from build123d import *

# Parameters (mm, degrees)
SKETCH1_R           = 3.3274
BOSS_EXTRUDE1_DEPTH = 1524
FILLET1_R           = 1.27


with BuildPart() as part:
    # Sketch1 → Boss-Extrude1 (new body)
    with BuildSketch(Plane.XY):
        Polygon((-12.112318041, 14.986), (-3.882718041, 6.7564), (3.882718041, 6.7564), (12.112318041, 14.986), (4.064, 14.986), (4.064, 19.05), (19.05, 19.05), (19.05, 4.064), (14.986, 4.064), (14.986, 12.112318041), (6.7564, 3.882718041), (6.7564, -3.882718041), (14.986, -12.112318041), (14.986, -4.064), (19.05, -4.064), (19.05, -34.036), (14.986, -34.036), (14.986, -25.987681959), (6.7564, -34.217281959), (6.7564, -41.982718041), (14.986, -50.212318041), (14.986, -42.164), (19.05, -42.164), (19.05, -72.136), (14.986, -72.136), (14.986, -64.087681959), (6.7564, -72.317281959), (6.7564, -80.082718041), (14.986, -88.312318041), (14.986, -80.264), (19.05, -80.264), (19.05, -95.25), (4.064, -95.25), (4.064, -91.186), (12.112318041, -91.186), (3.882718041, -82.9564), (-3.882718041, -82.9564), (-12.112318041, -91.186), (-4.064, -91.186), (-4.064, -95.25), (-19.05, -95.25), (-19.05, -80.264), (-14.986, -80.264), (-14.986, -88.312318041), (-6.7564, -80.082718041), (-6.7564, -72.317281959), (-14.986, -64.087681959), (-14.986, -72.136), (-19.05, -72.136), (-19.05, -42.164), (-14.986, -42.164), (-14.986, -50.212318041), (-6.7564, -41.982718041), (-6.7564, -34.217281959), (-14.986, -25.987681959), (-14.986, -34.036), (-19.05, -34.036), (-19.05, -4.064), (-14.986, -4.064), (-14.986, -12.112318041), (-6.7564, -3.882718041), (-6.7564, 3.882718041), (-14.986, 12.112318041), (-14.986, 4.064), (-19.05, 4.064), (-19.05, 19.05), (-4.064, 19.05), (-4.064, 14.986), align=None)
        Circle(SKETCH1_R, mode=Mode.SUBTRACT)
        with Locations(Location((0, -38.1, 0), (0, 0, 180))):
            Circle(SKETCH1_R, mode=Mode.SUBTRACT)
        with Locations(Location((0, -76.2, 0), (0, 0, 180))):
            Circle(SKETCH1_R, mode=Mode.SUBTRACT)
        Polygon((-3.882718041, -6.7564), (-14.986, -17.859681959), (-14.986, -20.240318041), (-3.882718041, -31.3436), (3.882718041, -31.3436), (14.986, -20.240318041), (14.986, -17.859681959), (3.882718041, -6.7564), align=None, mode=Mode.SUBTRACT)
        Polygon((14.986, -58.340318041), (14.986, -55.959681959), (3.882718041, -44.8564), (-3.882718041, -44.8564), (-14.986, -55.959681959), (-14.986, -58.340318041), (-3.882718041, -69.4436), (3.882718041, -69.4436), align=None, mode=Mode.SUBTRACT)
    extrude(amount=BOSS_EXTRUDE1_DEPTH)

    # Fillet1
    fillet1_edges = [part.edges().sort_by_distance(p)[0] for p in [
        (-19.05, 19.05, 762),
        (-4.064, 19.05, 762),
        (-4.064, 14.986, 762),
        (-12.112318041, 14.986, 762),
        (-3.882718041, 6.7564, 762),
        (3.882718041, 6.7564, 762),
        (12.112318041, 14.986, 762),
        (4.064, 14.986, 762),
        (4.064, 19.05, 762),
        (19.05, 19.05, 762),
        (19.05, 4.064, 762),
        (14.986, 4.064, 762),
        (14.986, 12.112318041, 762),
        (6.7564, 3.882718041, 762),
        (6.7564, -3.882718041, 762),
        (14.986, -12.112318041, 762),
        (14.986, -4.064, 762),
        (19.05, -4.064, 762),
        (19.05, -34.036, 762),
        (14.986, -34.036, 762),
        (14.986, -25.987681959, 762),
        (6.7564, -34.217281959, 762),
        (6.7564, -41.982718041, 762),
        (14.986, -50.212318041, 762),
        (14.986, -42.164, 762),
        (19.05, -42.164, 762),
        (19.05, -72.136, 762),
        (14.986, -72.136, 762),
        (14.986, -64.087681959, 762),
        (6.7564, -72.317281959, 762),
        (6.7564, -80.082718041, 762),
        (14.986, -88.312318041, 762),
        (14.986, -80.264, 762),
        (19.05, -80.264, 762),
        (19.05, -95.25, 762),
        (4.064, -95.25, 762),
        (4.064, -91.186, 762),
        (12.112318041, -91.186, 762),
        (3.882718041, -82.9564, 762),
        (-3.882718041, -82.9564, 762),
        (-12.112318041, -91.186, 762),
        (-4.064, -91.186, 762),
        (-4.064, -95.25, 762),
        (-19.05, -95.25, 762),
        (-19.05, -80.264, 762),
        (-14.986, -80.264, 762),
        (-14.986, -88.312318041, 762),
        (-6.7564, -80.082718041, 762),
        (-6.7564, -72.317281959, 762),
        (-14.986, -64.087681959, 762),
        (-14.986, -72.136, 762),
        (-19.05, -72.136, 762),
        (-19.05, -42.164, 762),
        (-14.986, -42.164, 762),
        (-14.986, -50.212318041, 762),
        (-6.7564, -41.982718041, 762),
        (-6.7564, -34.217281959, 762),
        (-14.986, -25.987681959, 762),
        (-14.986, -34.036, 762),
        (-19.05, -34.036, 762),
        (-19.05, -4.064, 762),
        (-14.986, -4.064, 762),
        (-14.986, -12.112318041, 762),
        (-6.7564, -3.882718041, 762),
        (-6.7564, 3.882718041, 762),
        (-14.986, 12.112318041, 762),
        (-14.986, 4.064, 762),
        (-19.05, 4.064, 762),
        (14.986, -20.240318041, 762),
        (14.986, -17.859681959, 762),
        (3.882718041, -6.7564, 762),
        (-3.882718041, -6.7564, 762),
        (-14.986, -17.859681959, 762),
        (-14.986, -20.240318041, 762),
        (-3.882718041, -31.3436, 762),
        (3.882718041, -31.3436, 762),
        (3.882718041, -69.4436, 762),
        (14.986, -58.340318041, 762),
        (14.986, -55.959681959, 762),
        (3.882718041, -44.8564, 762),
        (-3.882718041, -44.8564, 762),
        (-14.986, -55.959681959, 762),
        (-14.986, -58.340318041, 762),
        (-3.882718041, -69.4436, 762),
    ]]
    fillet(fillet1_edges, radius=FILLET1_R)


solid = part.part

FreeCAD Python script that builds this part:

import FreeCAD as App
import Part
import Sketcher
from FreeCAD import Vector
Q = App.Units.Quantity


def edges_at(feature, points):
    """Names of the edges that pass closest to the given points."""
    edges = feature.Shape.Edges
    near = lambda p: min(range(len(edges)), key=lambda i: edges[i].distToShape(Part.Vertex(*p))[0])
    return sorted({f"Edge{near(p) + 1}" for p in points})


def add_polygon(sketch, points):
    """Adds a closed chain of lines whose ends are joined by coincident constraints."""
    first, n = sketch.GeometryCount, len(points)
    for a, b in zip(points, points[1:] + points[:1]):
        sketch.addGeometry(Part.LineSegment(App.Vector(*a, 0), App.Vector(*b, 0)), False)
    for i in range(n):
        sketch.addConstraint(Sketcher.Constraint("Coincident", first + i, 2, first + (i + 1) % n, 1))

doc = App.newDocument("Part")
body = doc.addObject("PartDesign::Body", "Body")

# Sketch on XY plane
sketch1 = body.newObject("Sketcher::SketchObject", "Sketch")
sketch1.AttachmentSupport = (doc.getObject("XY_Plane"), [""])
sketch1.MapMode = "FlatFace"
add_polygon(sketch1, [(-3.882718, 6.7564), (-12.112318, 14.986), (-4.064, 14.986), (-4.064, 19.05), (-19.05, 19.05), (-19.05, 4.064), (-14.986, 4.064), (-14.986, 12.112318), (-6.7564, 3.882718), (-6.7564, -3.882718), (-14.986, -12.112318), (-14.986, -4.064), (-19.05, -4.064), (-19.05, -34.036), (-14.986, -34.036), (-14.986, -25.987682), (-6.7564, -34.217282), (-6.7564, -41.982718), (-14.986, -50.212318), (-14.986, -42.164), (-19.05, -42.164), (-19.05, -72.136), (-14.986, -72.136), (-14.986, -64.087682), (-6.7564, -72.317282), (-6.7564, -80.082718), (-14.986, -88.312318), (-14.986, -80.264), (-19.05, -80.264), (-19.05, -95.25), (-4.064, -95.25), (-4.064, -91.186), (-12.112318, -91.186), (-3.882718, -82.9564), (3.882718, -82.9564), (12.112318, -91.186), (4.064, -91.186), (4.064, -95.25), (19.05, -95.25), (19.05, -80.264), (14.986, -80.264), (14.986, -88.312318), (6.7564, -80.082718), (6.7564, -72.317282), (14.986, -64.087682), (14.986, -72.136), (19.05, -72.136), (19.05, -42.164), (14.986, -42.164), (14.986, -50.212318), (6.7564, -41.982718), (6.7564, -34.217282), (14.986, -25.987682), (14.986, -34.036), (19.05, -34.036), (19.05, -4.064), (14.986, -4.064), (14.986, -12.112318), (6.7564, -3.882718), (6.7564, 3.882718), (14.986, 12.112318), (14.986, 4.064), (19.05, 4.064), (19.05, 19.05), (4.064, 19.05), (4.064, 14.986), (12.112318, 14.986), (3.882718, 6.7564)])  # lines 0-67
sketch1.addGeometry(Part.Circle(Vector(0, -76.2, 0), Vector(0, 0, 1), 3.3274), False)  # 68
add_polygon(sketch1, [(14.986, -58.340318), (3.882718, -69.4436), (-3.882718, -69.4436), (-14.986, -58.340318), (-14.986, -55.959682), (-3.882718, -44.8564), (3.882718, -44.8564), (14.986, -55.959682)])  # lines 69-76
sketch1.addGeometry(Part.Circle(Vector(0, -38.1, 0), Vector(0, 0, 1), 3.3274), False)  # 77
add_polygon(sketch1, [(-3.882718, -6.7564), (3.882718, -6.7564), (14.986, -17.859682), (14.986, -20.240318), (3.882718, -31.3436), (-3.882718, -31.3436), (-14.986, -20.240318), (-14.986, -17.859682)])  # lines 78-85
sketch1.addGeometry(Part.Circle(Vector(0, 0, 0), Vector(0, 0, 1), 3.3274), False)  # 86
sketch1.addConstraint([
    Sketcher.Constraint("Horizontal", 1),
    Sketcher.Constraint("Vertical", 2),
    Sketcher.Constraint("Horizontal", 3),
    Sketcher.Constraint("Vertical", 4),
    Sketcher.Constraint("Horizontal", 5),
    Sketcher.Constraint("Vertical", 6),
    Sketcher.Constraint("Vertical", 8),
    Sketcher.Constraint("Vertical", 10),
    Sketcher.Constraint("Horizontal", 11),
    Sketcher.Constraint("Vertical", 12),
    Sketcher.Constraint("Horizontal", 13),
    Sketcher.Constraint("Vertical", 14),
    Sketcher.Constraint("Vertical", 16),
    Sketcher.Constraint("Vertical", 18),
    Sketcher.Constraint("Horizontal", 19),
    Sketcher.Constraint("Vertical", 20),
    Sketcher.Constraint("Horizontal", 21),
    Sketcher.Constraint("Vertical", 22),
    Sketcher.Constraint("Vertical", 24),
    Sketcher.Constraint("Vertical", 26),
    Sketcher.Constraint("Horizontal", 27),
    Sketcher.Constraint("Vertical", 28),
    Sketcher.Constraint("Horizontal", 29),
    Sketcher.Constraint("Vertical", 30),
    Sketcher.Constraint("Horizontal", 31),
    Sketcher.Constraint("Horizontal", 33),
    Sketcher.Constraint("Horizontal", 35),
    Sketcher.Constraint("Vertical", 36),
    Sketcher.Constraint("Horizontal", 37),
    Sketcher.Constraint("Vertical", 38),
    Sketcher.Constraint("Horizontal", 39),
    Sketcher.Constraint("Vertical", 40),
    Sketcher.Constraint("Vertical", 42),
    Sketcher.Constraint("Vertical", 44),
    Sketcher.Constraint("Horizontal", 45),
    Sketcher.Constraint("Vertical", 46),
    Sketcher.Constraint("Horizontal", 47),
    Sketcher.Constraint("Vertical", 48),
    Sketcher.Constraint("Vertical", 50),
    Sketcher.Constraint("Vertical", 52),
    Sketcher.Constraint("Horizontal", 53),
    Sketcher.Constraint("Vertical", 54),
    Sketcher.Constraint("Horizontal", 55),
    Sketcher.Constraint("Vertical", 56),
    Sketcher.Constraint("Vertical", 58),
    Sketcher.Constraint("Vertical", 60),
    Sketcher.Constraint("Horizontal", 61),
    Sketcher.Constraint("Vertical", 62),
    Sketcher.Constraint("Horizontal", 63),
    Sketcher.Constraint("Vertical", 64),
    Sketcher.Constraint("Horizontal", 65),
    Sketcher.Constraint("Horizontal", 67),
    Sketcher.Constraint("Horizontal", 70),
    Sketcher.Constraint("Vertical", 72),
    Sketcher.Constraint("Horizontal", 74),
    Sketcher.Constraint("Vertical", 76),
    Sketcher.Constraint("Horizontal", 78),
    Sketcher.Constraint("Vertical", 80),
    Sketcher.Constraint("Horizontal", 82),
    Sketcher.Constraint("Vertical", 84),
    Sketcher.Constraint("Coincident", 86, 3, -1, 1),
    Sketcher.Constraint("Equal", 68, 77),
    Sketcher.Constraint("Equal", 77, 86),
    Sketcher.Constraint("Symmetric", 4, 2, 54, 2, -1, 1),
    Sketcher.Constraint("Symmetric", 6, 2, 56, 2, -1, 1),
    Sketcher.Constraint("Symmetric", 7, 2, 57, 2, -1, 1),
    Sketcher.Constraint("Symmetric", 9, 2, 59, 2, -1, 1),
    Sketcher.Constraint("Symmetric", 11, 2, 61, 2, -1, 1),
    Sketcher.Constraint("Symmetric", 67, 2, 78, 2, -1, 1),
    Sketcher.Constraint("Symmetric", 31, 2, 34, 2, -2),
    Sketcher.Constraint("Symmetric", 29, 2, 36, 2, -2),
    Sketcher.Constraint("Symmetric", 27, 2, 38, 2, -2),
    Sketcher.Constraint("Symmetric", 25, 2, 40, 2, -2),
    Sketcher.Constraint("Symmetric", 24, 2, 41, 2, -2),
    Sketcher.Constraint("Symmetric", 22, 2, 43, 2, -2),
    Sketcher.Constraint("Symmetric", 20, 2, 45, 2, -2),
    Sketcher.Constraint("Symmetric", 18, 2, 47, 2, -2),
    Sketcher.Constraint("Symmetric", 16, 2, 49, 2, -2),
    Sketcher.Constraint("Symmetric", 14, 2, 51, 2, -2),
    Sketcher.Constraint("Symmetric", 12, 2, 53, 2, -2),
    Sketcher.Constraint("Symmetric", 10, 2, 55, 2, -2),
    Sketcher.Constraint("Symmetric", 2, 2, 63, 2, -2),
    Sketcher.Constraint("Symmetric", 0, 2, 65, 2, -2),
    Sketcher.Constraint("Symmetric", 72, 2, 75, 2, -2),
    Sketcher.Constraint("Symmetric", 80, 2, 83, 2, -2),
    Sketcher.Constraint("PointOnObject", 68, 3, -2),
    Sketcher.Constraint("PointOnObject", 77, 3, -2),
    Sketcher.Constraint("Parallel", 0, 7),
    Sketcher.Constraint("Perpendicular", 7, 9),
    Sketcher.Constraint("Perpendicular", 9, 15),
    Sketcher.Constraint("Perpendicular", 15, 17),
    Sketcher.Constraint("Perpendicular", 17, 23),
    Sketcher.Constraint("Perpendicular", 23, 25),
    Sketcher.Constraint("Parallel", 25, 32),
    Sketcher.Constraint("Perpendicular", 32, 34),
    Sketcher.Constraint("Parallel", 34, 41),
    Sketcher.Constraint("Perpendicular", 41, 43),
    Sketcher.Constraint("Perpendicular", 43, 49),
    Sketcher.Constraint("Perpendicular", 49, 51),
    Sketcher.Constraint("Perpendicular", 57, 59),
    Sketcher.Constraint("Parallel", 59, 66),
    Sketcher.Constraint("Parallel", 66, 69),
    Sketcher.Constraint("Perpendicular", 69, 71),
    Sketcher.Constraint("Perpendicular", 71, 73),
    Sketcher.Constraint("Perpendicular", 73, 75),
    Sketcher.Constraint("Parallel", 75, 79),
    Sketcher.Constraint("Perpendicular", 79, 81),
    Sketcher.Constraint("Perpendicular", 81, 83),
    Sketcher.Constraint("Perpendicular", 83, 85),
    Sketcher.Constraint("Horizontal", 9, 2, 56, 2),
    Sketcher.Constraint("Horizontal", 71, 2, 76, 2),
    Sketcher.Constraint("Horizontal", 79, 2, 84, 2),
    Sketcher.Constraint("Vertical", 10, 2, 13, 2),
    Sketcher.Constraint("Vertical", 8, 2, 15, 2),
    Sketcher.Constraint("Vertical", 14, 2, 17, 2),
    Sketcher.Constraint("Vertical", 12, 2, 19, 2),
    Sketcher.Constraint("Vertical", 18, 2, 21, 2),
    Sketcher.Constraint("Vertical", 16, 2, 23, 2),
    Sketcher.Constraint("Vertical", 22, 2, 25, 2),
    Sketcher.Constraint("Vertical", 20, 2, 27, 2),
    Sketcher.Constraint("Vertical", 2, 2, 29, 2),
    Sketcher.Constraint("Vertical", 0, 2, 31, 2),
    Sketcher.Constraint("Vertical", 33, 2, 66, 2),
    Sketcher.Constraint("Vertical", 66, 2, 69, 2),
    Sketcher.Constraint("Vertical", 26, 2, 71, 2),
    Sketcher.Constraint("Vertical", 70, 2, 73, 2),
    Sketcher.Constraint("Vertical", 76, 2, 79, 2),
    Sketcher.Constraint("Vertical", 78, 2, 81, 2),
    Sketcher.Constraint("Equal", 61, 2),
    Sketcher.Constraint("Equal", 63, 4),
    Sketcher.Constraint("Equal", 65, 6),
    Sketcher.Constraint("Equal", 82, 8),
    Sketcher.Constraint("Equal", 10, 14),
    Sketcher.Constraint("Equal", 8, 16),
    Sketcher.Constraint("Equal", 14, 18),
    Sketcher.Constraint("Equal", 12, 20),
    Sketcher.Constraint("Equal", 18, 22),
    Sketcher.Constraint("Equal", 16, 24),
    Sketcher.Constraint("Equal", 22, 26),
    Sketcher.Constraint("Equal", 4, 28),
    Sketcher.Constraint("Equal", 2, 30),
    Sketcher.Constraint("Equal", 76, 80),
    Sketcher.Constraint("Equal", 0, 7),
    Sketcher.Constraint("Diameter", 68, Q("0.262 in")),
    Sketcher.Constraint("DistanceY", 68, 3, -1, 1, Q("3 in")),
    Sketcher.Constraint("DistanceX", 3, 2, 3, 1, Q("0.59 in")),
    Sketcher.Constraint("DistanceX", 5, 1, 5, 2, Q("0.16 in")),
    Sketcher.Constraint("DistanceY", 12, 2, 12, 1, Q("1.18 in")),
    Sketcher.Constraint("DistanceY", 77, 3, -1, 1, Q("1.5 in")),
    Sketcher.Constraint("DistanceY", -1, 1, 0, 2, Q("0.59 in")),
    Sketcher.Constraint("DistanceX", 7, 2, -1, 1, Q("0.266 in")),
    Sketcher.Constraint("DistanceY", 69, 2, -1, 1, Q("2.734 in")),
    Sketcher.Constraint("DistanceY", 73, 2, -1, 1, Q("1.766 in")),
    Sketcher.Constraint("DistanceX", 1, 1, 1, 2, Q("8.048318 mm")),
])
pad1 = body.newObject("PartDesign::Pad", "Pad")
pad1.Profile = sketch1
pad1.Length = Q("60 in")
doc.recompute()

fillet = body.newObject("PartDesign::Fillet", "Fillet")
fillet.Base = (pad1, edges_at(pad1, [
    (-19.05, 19.05, 762),
    (-4.064, 19.05, 762),
    (-4.064, 14.986, 762),
    (-12.112, 14.986, 762),
    (-3.883, 6.756, 762),
    (3.883, 6.756, 762),
    (12.112, 14.986, 762),
    (4.064, 14.986, 762),
    (4.064, 19.05, 762),
    (19.05, 19.05, 762),
    (19.05, 4.064, 762),
    (14.986, 4.064, 762),
    (14.986, 12.112, 762),
    (6.756, 3.883, 762),
    (6.756, -3.883, 762),
    (14.986, -12.112, 762),
    (14.986, -4.064, 762),
    (19.05, -4.064, 762),
    (19.05, -34.036, 762),
    (14.986, -34.036, 762),
    (14.986, -25.988, 762),
    (6.756, -34.217, 762),
    (6.756, -41.983, 762),
    (14.986, -50.212, 762),
    (14.986, -42.164, 762),
    (19.05, -42.164, 762),
    (19.05, -72.136, 762),
    (14.986, -72.136, 762),
    (14.986, -64.088, 762),
    (6.756, -72.317, 762),
    (6.756, -80.083, 762),
    (14.986, -88.312, 762),
    (14.986, -80.264, 762),
    (19.05, -80.264, 762),
    (19.05, -95.25, 762),
    (4.064, -95.25, 762),
    (4.064, -91.186, 762),
    (12.112, -91.186, 762),
    (3.883, -82.956, 762),
    (-3.883, -82.956, 762),
    (-12.112, -91.186, 762),
    (-4.064, -91.186, 762),
    (-4.064, -95.25, 762),
    (-19.05, -95.25, 762),
    (-19.05, -80.264, 762),
    (-14.986, -80.264, 762),
    (-14.986, -88.312, 762),
    (-6.756, -80.083, 762),
    (-6.756, -72.317, 762),
    (-14.986, -64.088, 762),
    (-14.986, -72.136, 762),
    (-19.05, -72.136, 762),
    (-19.05, -42.164, 762),
    (-14.986, -42.164, 762),
    (-14.986, -50.212, 762),
    (-6.756, -41.983, 762),
    (-6.756, -34.217, 762),
    (-14.986, -25.988, 762),
    (-14.986, -34.036, 762),
    (-19.05, -34.036, 762),
    (-19.05, -4.064, 762),
    (-14.986, -4.064, 762),
    (-14.986, -12.112, 762),
    (-6.756, -3.883, 762),
    (-6.756, 3.883, 762),
    (-14.986, 12.112, 762),
    (-14.986, 4.064, 762),
    (-19.05, 4.064, 762),
    (14.986, -20.24, 762),
    (14.986, -17.86, 762),
    (3.883, -6.756, 762),
    (-3.883, -6.756, 762),
    (-14.986, -17.86, 762),
    (-14.986, -20.24, 762),
    (-3.883, -31.344, 762),
    (3.883, -31.344, 762),
    (3.883, -69.444, 762),
    (14.986, -58.34, 762),
    (14.986, -55.96, 762),
    (3.883, -44.856, 762),
    (-3.883, -44.856, 762),
    (-14.986, -55.96, 762),
    (-14.986, -58.34, 762),
    (-3.883, -69.444, 762),
]))
fillet.Radius = Q("0.05 in")

doc.recompute()
